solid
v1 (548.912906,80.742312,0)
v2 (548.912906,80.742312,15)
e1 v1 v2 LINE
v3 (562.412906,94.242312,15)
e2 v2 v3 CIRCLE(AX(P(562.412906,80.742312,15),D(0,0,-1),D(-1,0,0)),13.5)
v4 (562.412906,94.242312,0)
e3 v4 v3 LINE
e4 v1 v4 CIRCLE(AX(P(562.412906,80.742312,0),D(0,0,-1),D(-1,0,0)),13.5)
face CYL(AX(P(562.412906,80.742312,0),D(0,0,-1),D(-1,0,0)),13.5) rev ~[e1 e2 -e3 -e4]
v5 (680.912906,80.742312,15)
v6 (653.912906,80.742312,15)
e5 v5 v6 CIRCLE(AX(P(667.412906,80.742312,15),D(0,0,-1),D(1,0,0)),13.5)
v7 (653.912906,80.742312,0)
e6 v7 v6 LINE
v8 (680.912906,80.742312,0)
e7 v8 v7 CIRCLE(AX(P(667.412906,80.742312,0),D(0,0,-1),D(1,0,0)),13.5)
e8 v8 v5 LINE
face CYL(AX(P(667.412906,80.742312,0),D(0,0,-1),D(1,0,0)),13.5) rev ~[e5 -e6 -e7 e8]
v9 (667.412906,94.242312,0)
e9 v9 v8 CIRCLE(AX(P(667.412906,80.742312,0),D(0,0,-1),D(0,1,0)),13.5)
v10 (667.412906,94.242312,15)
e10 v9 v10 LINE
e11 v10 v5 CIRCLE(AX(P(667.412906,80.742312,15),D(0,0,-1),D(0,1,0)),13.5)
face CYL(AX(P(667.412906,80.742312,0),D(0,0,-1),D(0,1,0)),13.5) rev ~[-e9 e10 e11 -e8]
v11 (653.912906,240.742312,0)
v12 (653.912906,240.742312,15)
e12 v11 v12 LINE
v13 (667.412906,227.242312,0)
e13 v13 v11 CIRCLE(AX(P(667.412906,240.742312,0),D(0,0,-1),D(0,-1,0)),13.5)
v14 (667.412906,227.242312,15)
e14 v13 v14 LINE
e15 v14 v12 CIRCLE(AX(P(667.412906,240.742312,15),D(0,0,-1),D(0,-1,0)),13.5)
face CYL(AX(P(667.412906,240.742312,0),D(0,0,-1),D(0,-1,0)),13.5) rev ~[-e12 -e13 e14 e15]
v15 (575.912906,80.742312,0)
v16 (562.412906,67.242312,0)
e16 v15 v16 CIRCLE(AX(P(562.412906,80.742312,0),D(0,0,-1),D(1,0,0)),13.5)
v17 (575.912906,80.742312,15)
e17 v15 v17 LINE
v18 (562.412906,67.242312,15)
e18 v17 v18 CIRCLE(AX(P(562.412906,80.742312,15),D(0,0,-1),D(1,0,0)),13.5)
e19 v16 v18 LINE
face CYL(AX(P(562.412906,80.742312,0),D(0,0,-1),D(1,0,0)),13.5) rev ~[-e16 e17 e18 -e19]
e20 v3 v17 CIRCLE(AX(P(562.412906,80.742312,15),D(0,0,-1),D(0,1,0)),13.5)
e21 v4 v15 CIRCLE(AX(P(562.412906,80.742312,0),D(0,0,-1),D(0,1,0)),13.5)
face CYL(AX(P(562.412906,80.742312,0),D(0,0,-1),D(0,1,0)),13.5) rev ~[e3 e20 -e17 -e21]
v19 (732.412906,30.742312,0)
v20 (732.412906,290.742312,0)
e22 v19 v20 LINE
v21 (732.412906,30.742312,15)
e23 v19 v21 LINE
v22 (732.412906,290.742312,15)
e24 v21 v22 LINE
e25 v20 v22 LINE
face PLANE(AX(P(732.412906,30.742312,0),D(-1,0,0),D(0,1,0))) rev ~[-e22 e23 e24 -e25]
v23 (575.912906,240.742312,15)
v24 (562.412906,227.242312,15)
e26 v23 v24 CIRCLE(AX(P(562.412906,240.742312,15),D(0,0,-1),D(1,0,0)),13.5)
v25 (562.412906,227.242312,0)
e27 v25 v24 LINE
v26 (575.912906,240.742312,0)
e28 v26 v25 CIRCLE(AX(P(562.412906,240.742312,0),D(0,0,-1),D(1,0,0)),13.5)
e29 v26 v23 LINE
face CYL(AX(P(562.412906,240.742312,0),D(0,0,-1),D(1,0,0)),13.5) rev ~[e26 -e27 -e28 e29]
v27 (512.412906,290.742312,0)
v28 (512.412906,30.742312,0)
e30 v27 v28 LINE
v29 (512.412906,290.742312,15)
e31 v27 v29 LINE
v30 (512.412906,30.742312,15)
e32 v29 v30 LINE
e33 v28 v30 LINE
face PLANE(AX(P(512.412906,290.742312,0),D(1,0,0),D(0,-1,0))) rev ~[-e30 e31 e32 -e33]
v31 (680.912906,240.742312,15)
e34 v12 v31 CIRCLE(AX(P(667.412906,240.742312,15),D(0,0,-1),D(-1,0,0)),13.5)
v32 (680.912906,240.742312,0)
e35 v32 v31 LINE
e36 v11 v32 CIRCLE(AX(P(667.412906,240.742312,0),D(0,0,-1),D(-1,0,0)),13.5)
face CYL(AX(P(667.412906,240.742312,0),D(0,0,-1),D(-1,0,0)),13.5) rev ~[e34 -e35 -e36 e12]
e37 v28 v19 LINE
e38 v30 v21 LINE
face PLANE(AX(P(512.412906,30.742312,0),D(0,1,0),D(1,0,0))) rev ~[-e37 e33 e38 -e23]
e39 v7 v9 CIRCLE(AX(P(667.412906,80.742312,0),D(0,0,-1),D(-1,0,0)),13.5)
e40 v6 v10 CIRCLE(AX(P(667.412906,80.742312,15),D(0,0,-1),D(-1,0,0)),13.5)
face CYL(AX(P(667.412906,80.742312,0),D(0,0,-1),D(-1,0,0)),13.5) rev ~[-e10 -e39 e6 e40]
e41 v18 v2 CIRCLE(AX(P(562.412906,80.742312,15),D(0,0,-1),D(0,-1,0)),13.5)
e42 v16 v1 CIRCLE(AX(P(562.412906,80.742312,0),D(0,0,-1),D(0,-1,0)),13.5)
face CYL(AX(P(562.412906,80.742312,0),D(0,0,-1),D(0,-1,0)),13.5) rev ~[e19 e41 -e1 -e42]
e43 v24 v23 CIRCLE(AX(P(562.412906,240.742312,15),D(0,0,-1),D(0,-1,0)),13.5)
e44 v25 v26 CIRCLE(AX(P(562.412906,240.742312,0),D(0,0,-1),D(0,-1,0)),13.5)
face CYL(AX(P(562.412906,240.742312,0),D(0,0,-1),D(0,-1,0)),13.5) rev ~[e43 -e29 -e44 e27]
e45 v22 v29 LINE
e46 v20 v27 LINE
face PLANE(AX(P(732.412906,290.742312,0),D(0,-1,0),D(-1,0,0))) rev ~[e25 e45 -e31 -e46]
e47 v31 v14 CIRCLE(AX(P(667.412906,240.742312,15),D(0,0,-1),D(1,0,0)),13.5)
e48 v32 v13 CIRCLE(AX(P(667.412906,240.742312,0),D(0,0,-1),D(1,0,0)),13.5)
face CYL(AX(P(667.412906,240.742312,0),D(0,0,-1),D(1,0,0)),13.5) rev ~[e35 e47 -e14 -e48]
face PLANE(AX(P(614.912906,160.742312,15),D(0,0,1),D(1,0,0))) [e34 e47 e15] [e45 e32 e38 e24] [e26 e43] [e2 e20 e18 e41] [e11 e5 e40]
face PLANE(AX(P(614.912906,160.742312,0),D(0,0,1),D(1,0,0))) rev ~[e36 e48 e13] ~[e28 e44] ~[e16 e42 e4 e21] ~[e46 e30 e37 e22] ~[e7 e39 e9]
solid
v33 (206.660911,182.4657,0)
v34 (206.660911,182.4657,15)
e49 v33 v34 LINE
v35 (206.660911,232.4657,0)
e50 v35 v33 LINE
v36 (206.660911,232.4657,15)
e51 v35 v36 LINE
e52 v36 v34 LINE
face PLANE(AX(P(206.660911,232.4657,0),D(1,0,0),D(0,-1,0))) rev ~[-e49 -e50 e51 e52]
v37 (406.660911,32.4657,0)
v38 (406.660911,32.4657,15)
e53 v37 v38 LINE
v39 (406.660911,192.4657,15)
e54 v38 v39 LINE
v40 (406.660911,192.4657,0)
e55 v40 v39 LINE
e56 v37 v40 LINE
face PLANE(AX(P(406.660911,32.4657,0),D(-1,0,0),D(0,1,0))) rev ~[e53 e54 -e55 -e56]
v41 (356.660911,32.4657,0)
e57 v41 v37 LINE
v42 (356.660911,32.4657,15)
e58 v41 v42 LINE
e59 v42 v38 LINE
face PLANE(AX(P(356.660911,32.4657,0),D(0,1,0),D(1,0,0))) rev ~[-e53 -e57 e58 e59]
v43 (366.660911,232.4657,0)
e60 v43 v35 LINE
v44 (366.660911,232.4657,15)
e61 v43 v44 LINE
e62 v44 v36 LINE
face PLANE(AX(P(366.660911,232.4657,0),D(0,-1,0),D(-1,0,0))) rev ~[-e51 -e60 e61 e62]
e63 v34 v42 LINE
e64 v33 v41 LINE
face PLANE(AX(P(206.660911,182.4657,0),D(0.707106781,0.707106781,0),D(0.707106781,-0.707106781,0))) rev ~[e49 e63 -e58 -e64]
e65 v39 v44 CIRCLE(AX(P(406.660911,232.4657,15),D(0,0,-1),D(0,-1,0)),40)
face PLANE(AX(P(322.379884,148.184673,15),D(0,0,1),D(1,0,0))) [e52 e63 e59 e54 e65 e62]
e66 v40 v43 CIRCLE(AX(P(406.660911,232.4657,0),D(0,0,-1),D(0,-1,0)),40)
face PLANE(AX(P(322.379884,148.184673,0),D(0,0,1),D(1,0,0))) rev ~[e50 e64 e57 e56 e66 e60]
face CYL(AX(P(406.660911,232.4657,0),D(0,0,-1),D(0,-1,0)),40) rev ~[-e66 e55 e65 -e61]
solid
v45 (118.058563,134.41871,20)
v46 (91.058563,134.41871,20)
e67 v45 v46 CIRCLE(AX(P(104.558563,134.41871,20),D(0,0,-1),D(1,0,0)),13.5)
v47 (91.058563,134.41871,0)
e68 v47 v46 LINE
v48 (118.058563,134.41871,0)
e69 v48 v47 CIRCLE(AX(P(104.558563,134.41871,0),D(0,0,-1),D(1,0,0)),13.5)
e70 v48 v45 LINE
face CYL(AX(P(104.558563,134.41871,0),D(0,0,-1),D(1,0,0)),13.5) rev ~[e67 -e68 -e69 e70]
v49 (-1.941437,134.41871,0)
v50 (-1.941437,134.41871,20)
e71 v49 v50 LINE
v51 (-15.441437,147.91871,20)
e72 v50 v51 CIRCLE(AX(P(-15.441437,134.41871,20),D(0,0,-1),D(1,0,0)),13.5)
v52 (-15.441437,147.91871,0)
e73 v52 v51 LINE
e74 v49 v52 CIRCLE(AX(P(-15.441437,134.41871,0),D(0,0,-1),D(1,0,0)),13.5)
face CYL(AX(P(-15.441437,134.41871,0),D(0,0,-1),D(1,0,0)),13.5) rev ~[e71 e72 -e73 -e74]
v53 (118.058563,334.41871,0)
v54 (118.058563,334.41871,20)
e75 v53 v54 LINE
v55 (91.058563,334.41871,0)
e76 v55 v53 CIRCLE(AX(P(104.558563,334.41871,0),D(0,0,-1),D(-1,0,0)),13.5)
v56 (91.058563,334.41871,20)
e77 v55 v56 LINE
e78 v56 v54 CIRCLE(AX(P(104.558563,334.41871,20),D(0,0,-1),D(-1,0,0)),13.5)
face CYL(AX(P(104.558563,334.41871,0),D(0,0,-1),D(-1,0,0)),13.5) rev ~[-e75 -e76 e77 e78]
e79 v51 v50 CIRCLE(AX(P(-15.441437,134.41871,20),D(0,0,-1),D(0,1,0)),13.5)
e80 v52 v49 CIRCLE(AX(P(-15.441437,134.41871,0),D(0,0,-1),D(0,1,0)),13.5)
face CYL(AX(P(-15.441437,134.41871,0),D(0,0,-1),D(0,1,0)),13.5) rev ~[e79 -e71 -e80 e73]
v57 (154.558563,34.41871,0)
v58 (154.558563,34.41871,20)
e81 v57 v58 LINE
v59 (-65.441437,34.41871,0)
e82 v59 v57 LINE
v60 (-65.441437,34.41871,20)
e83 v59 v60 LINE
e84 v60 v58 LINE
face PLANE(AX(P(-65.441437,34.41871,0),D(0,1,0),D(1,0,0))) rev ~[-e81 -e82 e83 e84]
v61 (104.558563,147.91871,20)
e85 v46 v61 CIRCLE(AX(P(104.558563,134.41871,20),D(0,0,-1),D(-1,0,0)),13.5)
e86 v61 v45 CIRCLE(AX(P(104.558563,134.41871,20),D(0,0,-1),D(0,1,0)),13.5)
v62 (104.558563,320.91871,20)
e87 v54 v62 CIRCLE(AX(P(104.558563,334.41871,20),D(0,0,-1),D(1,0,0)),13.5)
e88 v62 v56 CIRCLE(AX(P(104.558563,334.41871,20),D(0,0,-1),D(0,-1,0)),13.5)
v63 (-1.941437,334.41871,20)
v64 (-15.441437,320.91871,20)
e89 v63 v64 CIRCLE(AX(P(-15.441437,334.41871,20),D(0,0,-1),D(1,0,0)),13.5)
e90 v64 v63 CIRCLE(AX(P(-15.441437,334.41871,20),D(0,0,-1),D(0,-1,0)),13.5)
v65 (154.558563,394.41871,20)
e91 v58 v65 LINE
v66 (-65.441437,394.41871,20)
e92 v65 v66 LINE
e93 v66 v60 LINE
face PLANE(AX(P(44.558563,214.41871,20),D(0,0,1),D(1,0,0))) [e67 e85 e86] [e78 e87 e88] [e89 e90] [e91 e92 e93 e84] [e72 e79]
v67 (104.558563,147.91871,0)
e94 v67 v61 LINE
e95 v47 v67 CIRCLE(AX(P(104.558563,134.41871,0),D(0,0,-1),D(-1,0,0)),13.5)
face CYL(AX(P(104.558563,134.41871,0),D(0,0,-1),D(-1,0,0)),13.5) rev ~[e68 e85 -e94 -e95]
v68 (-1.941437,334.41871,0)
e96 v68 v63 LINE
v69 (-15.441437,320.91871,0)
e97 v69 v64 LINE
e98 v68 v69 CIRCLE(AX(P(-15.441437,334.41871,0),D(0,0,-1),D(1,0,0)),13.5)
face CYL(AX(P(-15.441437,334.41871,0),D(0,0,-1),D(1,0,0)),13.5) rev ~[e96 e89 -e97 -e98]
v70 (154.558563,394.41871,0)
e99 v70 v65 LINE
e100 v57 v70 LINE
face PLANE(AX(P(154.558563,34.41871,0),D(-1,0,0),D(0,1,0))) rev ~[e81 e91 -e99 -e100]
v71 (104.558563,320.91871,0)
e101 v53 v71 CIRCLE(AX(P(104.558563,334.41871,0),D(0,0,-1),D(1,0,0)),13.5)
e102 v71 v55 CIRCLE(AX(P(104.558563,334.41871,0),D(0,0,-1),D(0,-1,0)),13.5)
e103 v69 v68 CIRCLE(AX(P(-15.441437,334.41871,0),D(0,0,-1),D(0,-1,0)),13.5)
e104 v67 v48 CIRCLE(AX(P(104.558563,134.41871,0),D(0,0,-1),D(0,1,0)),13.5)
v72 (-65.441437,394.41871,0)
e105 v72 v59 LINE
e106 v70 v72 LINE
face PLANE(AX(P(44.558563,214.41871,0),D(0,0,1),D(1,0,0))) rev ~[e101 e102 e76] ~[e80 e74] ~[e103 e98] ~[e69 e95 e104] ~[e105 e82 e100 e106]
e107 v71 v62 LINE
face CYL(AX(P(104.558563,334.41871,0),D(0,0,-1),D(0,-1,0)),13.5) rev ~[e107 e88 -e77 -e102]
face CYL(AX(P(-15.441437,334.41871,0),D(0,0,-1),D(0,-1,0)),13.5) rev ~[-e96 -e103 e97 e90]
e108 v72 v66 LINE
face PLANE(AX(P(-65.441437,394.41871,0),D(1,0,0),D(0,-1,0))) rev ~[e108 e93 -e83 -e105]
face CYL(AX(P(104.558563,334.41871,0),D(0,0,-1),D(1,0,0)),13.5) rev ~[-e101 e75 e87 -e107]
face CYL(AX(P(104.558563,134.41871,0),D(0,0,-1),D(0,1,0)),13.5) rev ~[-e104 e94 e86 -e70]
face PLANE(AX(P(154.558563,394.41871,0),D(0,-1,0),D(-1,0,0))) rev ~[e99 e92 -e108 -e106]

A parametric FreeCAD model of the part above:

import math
import FreeCAD as App
import Part
import Sketcher
from FreeCAD import Vector
Q = App.Units.Quantity


def add_polygon(sketch, points):
    """Adds a closed chain of lines whose ends are joined by coincident constraints."""
    first, n = sketch.GeometryCount, len(points)
    for a, b in zip(points, points[1:] + points[:1]):
        sketch.addGeometry(Part.LineSegment(App.Vector(*a, 0), App.Vector(*b, 0)), False)
    for i in range(n):
        sketch.addConstraint(Sketcher.Constraint("Coincident", first + i, 2, first + (i + 1) % n, 1))

doc = App.newDocument("Part")
params = doc.addObject("Spreadsheet::Sheet", "Params")
for row, (alias, value) in enumerate([
    ("sketch1_radius", "13.5 mm"),
    ("sketch1_width", "220 mm"),
    ("sketch1_height", "360 mm"),
    ("pad1_length", "20 mm"),
    ("sketch2_radius", "40 mm"),
    ("sketch2_width", "50 mm"),
    ("sketch2_width2", "160 mm"),
    ("pad2_length", "15 mm"),
    ("sketch3_radius", "13.5 mm"),
    ("sketch3_width", "220 mm"),
    ("sketch3_height", "260 mm"),
    ("pad3_length", "15 mm"),
], start=1):
    params.set(f"A{row}", alias)
    params.set(f"B{row}", "=" + value)
    params.setAlias(f"B{row}", alias)

body = doc.addObject("PartDesign::Body", "Body")

sketch1 = body.newObject("Sketcher::SketchObject", "Sketch")
sketch1.AttachmentSupport = (doc.getObject("XY_Plane"), [""])
sketch1.MapMode = "FlatFace"
add_polygon(sketch1, [(-65, 394), (-65, 34), (155, 34), (155, 394)])
sketch1.addGeometry(Part.ArcOfCircle(Part.Circle(Vector(105, 134, 0), Vector(0, 0, 1), 14), math.radians(180), math.radians(360)), False)
sketch1.addGeometry(Part.ArcOfCircle(Part.Circle(Vector(105, 134, 0), Vector(0, 0, 1), 14), math.radians(90), math.radians(180)), False)
sketch1.addGeometry(Part.ArcOfCircle(Part.Circle(Vector(105, 134, 0), Vector(0, 0, 1), 14), math.radians(0), math.radians(90)), False)
sketch1.addGeometry(Part.ArcOfCircle(Part.Circle(Vector(105, 334, 0), Vector(0, 0, 1), 14), math.radians(-90), math.radians(0)), False)
sketch1.addGeometry(Part.ArcOfCircle(Part.Circle(Vector(105, 334, 0), Vector(0, 0, 1), 14), math.radians(180), math.radians(270)), False)
sketch1.addGeometry(Part.ArcOfCircle(Part.Circle(Vector(105, 334, 0), Vector(0, 0, 1), 14), math.radians(0), math.radians(180)), False)
sketch1.addGeometry(Part.ArcOfCircle(Part.Circle(Vector(-15, 334, 0), Vector(0, 0, 1), 14), math.radians(0), math.radians(270)), False)
sketch1.addGeometry(Part.ArcOfCircle(Part.Circle(Vector(-15, 334, 0), Vector(0, 0, 1), 14), math.radians(-90), math.radians(0)), False)
sketch1.addGeometry(Part.ArcOfCircle(Part.Circle(Vector(-15, 134, 0), Vector(0, 0, 1), 14), math.radians(90), math.radians(360)), False)
sketch1.addGeometry(Part.ArcOfCircle(Part.Circle(Vector(-15, 134, 0), Vector(0, 0, 1), 14), math.radians(0), math.radians(90)), False)
sketch1.addConstraint([
    Sketcher.Constraint("Tangent", 4, 1, 5, 2),
    Sketcher.Constraint("Tangent", 5, 1, 6, 2),
    Sketcher.Constraint("Tangent", 6, 1, 4, 2),
    Sketcher.Constraint("Tangent", 7, 1, 8, 2),
    Sketcher.Constraint("Tangent", 8, 1, 9, 2),
    Sketcher.Constraint("Tangent", 9, 1, 7, 2),
    Sketcher.Constraint("Tangent", 10, 1, 11, 2),
    Sketcher.Constraint("Coincident", 11, 1, 10, 2),
    Sketcher.Constraint("Tangent", 12, 1, 13, 2),
    Sketcher.Constraint("Coincident", 13, 1, 12, 2),
    Sketcher.Constraint("Vertical", 0),
    Sketcher.Constraint("Horizontal", 1),
    Sketcher.Constraint("Vertical", 2),
    Sketcher.Constraint("Horizontal", 3),
    Sketcher.Constraint("Equal", 6, 7),
    Sketcher.Constraint("Equal", 9, 10),
    Sketcher.Constraint("Equal", 11, 12),
    Sketcher.Constraint("Horizontal", 9, 3, 10, 3),
    Sketcher.Constraint("Horizontal", 6, 3, 12, 3),
    Sketcher.Constraint("Horizontal", 13, 3, 4, 1),
    Sketcher.Constraint("Horizontal", 4, 1, 6, 1),
    Sketcher.Constraint("Horizontal", 11, 3, 8, 1),
    Sketcher.Constraint("Horizontal", 8, 1, 9, 1),
    Sketcher.Constraint("Horizontal", 9, 1, 10, 1),
    Sketcher.Constraint("Horizontal", 6, 1, 13, 1),
    Sketcher.Constraint("Vertical", 6, 3, 7, 3),
    Sketcher.Constraint("Vertical", 11, 3, 12, 3),
    Sketcher.Constraint("Vertical", 9, 3, 5, 1),
    Sketcher.Constraint("Vertical", 5, 1, 7, 1),
    Sketcher.Constraint("Vertical", 13, 3, 11, 1),
    Sketcher.Constraint("Vertical", 11, 1, 12, 1),
    Sketcher.Constraint("Radius", 4, 13.5),
    Sketcher.Constraint("DistanceX", 1, 1, 1, 2, 220.0),
    Sketcher.Constraint("DistanceY", 0, 2, 0, 1, 360.0),
    Sketcher.Constraint("DistanceY", 4, 3, 7, 3, 200.0),
    Sketcher.Constraint("DistanceX", 10, 3, 7, 3, 120.0),
    Sketcher.Constraint("DistanceX", 0, 2, 12, 3, 50.0),
    Sketcher.Constraint("DistanceY", 0, 2, 12, 3, 100.0),
    Sketcher.Constraint("DistanceY", -1, 1, 4, 3, 134.41871),
    Sketcher.Constraint("DistanceX", -1, 1, 4, 3, 104.558563),
])
sketch1.setExpression("Constraints[35]", "Params.sketch1_radius")
sketch1.setExpression("Constraints[36]", "Params.sketch1_width")
sketch1.setExpression("Constraints[37]", "Params.sketch1_height")
pad1 = body.newObject("PartDesign::Pad", "Pad")
pad1.Profile = sketch1
pad1.setExpression("Length", "Params.pad1_length")
body2 = doc.addObject("PartDesign::Body", "Body001")

sketch2 = body2.newObject("Sketcher::SketchObject", "Sketch001")
sketch2.AttachmentSupport = (doc.getObject("XY_Plane001"), [""])
sketch2.MapMode = "FlatFace"
sketch2.addGeometry([
    Part.LineSegment(Vector(207, 182, 0), Vector(357, 32, 0)),
    Part.LineSegment(Vector(357, 32, 0), Vector(407, 32, 0)),
    Part.LineSegment(Vector(407, 32, 0), Vector(407, 192, 0)),
    Part.ArcOfCircle(Part.Circle(Vector(407, 232, 0), Vector(0, 0, 1), 40), math.radians(180), math.radians(270)),
    Part.LineSegment(Vector(367, 232, 0), Vector(207, 232, 0)),
    Part.LineSegment(Vector(207, 232, 0), Vector(207, 182, 0)),
], False)
sketch2.addConstraint([
    Sketcher.Constraint("Coincident", 0, 2, 1, 1),
    Sketcher.Constraint("Coincident", 1, 2, 2, 1),
    Sketcher.Constraint("Coincident", 2, 2, 3, 2),
    Sketcher.Constraint("Coincident", 3, 1, 4, 1),
    Sketcher.Constraint("Coincident", 4, 2, 5, 1),
    Sketcher.Constraint("Coincident", 5, 2, 0, 1),
    Sketcher.Constraint("Horizontal", 1),
    Sketcher.Constraint("Vertical", 2),
    Sketcher.Constraint("Horizontal", 4),
    Sketcher.Constraint("Vertical", 5),
    Sketcher.Constraint("Vertical", 3, 3, 1, 2),
    Sketcher.Constraint("Equal", 4, 2),
    Sketcher.Constraint("Equal", 1, 5),
    Sketcher.Constraint("Radius", 3, 40.0),
    Sketcher.Constraint("DistanceX", 1, 1, 1, 2, 50.0),
    Sketcher.Constraint("DistanceX", 4, 2, 4, 1, 160.0),
    Sketcher.Constraint("Angle", 0, Q("-45 deg")),
    Sketcher.Constraint("DistanceY", -1, 1, 3, 3, 232.4657),
    Sketcher.Constraint("DistanceX", -1, 1, 3, 3, 406.660911),
])
sketch2.setExpression("Constraints[13]", "Params.sketch2_radius")
sketch2.setExpression("Constraints[14]", "Params.sketch2_width")
sketch2.setExpression("Constraints[15]", "Params.sketch2_width2")
pad2 = body2.newObject("PartDesign::Pad", "Pad001")
pad2.Profile = sketch2
pad2.setExpression("Length", "Params.pad2_length")
body3 = doc.addObject("PartDesign::Body", "Body002")

sketch3 = body3.newObject("Sketcher::SketchObject", "Sketch002")
sketch3.AttachmentSupport = (doc.getObject("XY_Plane002"), [""])
sketch3.MapMode = "FlatFace"
add_polygon(sketch3, [(732, 31), (732, 291), (512, 291), (512, 31)])
sketch3.addGeometry(Part.ArcOfCircle(Part.Circle(Vector(562, 81, 0), Vector(0, 0, 1), 14), math.radians(0), math.radians(90)), False)
sketch3.addGeometry(Part.ArcOfCircle(Part.Circle(Vector(562, 81, 0), Vector(0, 0, 1), 14), math.radians(-90), math.radians(0)), False)
sketch3.addGeometry(Part.ArcOfCircle(Part.Circle(Vector(562, 81, 0), Vector(0, 0, 1), 14), math.radians(180), math.radians(270)), False)
sketch3.addGeometry(Part.ArcOfCircle(Part.Circle(Vector(562, 81, 0), Vector(0, 0, 1), 14), math.radians(90), math.radians(180)), False)
sketch3.addGeometry(Part.ArcOfCircle(Part.Circle(Vector(667, 81, 0), Vector(0, 0, 1), 14), math.radians(90), math.radians(180)), False)
sketch3.addGeometry(Part.ArcOfCircle(Part.Circle(Vector(667, 81, 0), Vector(0, 0, 1), 14), math.radians(0), math.radians(90)), False)
sketch3.addGeometry(Part.ArcOfCircle(Part.Circle(Vector(667, 81, 0), Vector(0, 0, 1), 14), math.radians(180), math.radians(360)), False)
sketch3.addGeometry(Part.ArcOfCircle(Part.Circle(Vector(667, 241, 0), Vector(0, 0, 1), 14), math.radians(180), math.radians(270)), False)
sketch3.addGeometry(Part.ArcOfCircle(Part.Circle(Vector(667, 241, 0), Vector(0, 0, 1), 14), math.radians(0), math.radians(180)), False)
sketch3.addGeometry(Part.ArcOfCircle(Part.Circle(Vector(667, 241, 0), Vector(0, 0, 1), 14), math.radians(-90), math.radians(0)), False)
sketch3.addGeometry(Part.ArcOfCircle(Part.Circle(Vector(562, 241, 0), Vector(0, 0, 1), 14), math.radians(-90), math.radians(0)), False)
sketch3.addGeometry(Part.ArcOfCircle(Part.Circle(Vector(562, 241, 0), Vector(0, 0, 1), 14), math.radians(0), math.radians(270)), False)
sketch3.addConstraint([
    Sketcher.Constraint("Tangent", 4, 1, 5, 2),
    Sketcher.Constraint("Tangent", 5, 1, 6, 2),
    Sketcher.Constraint("Tangent", 6, 1, 7, 2),
    Sketcher.Constraint("Tangent", 7, 1, 4, 2),
    Sketcher.Constraint("Tangent", 8, 1, 9, 2),
    Sketcher.Constraint("Tangent", 9, 1, 10, 2),
    Sketcher.Constraint("Tangent", 10, 1, 8, 2),
    Sketcher.Constraint("Tangent", 11, 1, 12, 2),
    Sketcher.Constraint("Tangent", 12, 1, 13, 2),
    Sketcher.Constraint("Tangent", 13, 1, 11, 2),
    Sketcher.Constraint("Tangent", 14, 1, 15, 2),
    Sketcher.Constraint("Coincident", 15, 1, 14, 2),
    Sketcher.Constraint("Vertical", 0),
    Sketcher.Constraint("Horizontal", 1),
    Sketcher.Constraint("Vertical", 2),
    Sketcher.Constraint("Horizontal", 3),
    Sketcher.Constraint("Equal", 4, 5),
    Sketcher.Constraint("Equal", 7, 8),
    Sketcher.Constraint("Equal", 10, 11),
    Sketcher.Constraint("Equal", 13, 14),
    Sketcher.Constraint("Horizontal", 7, 3, 8, 3),
    Sketcher.Constraint("Horizontal", 13, 3, 14, 3),
    Sketcher.Constraint("Horizontal", 10, 3, 4, 1),
    Sketcher.Constraint("Horizontal", 4, 1, 6, 1),
    Sketcher.Constraint("Horizontal", 6, 1, 9, 1),
    Sketcher.Constraint("Horizontal", 9, 1, 10, 1),
    Sketcher.Constraint("Horizontal", 15, 3, 11, 1),
    Sketcher.Constraint("Horizontal", 11, 1, 12, 1),
    Sketcher.Constraint("Horizontal", 12, 1, 15, 1),
    Sketcher.Constraint("Vertical", 10, 3, 11, 3),
    Sketcher.Constraint("Vertical", 7, 3, 14, 3),
    Sketcher.Constraint("Vertical", 15, 3, 5, 1),
    Sketcher.Constraint("Vertical", 5, 1, 7, 1),
    Sketcher.Constraint("Vertical", 13, 3, 8, 1),
    Sketcher.Constraint("Vertical", 8, 1, 13, 1),
    Sketcher.Constraint("Vertical", 7, 1, 14, 1),
    Sketcher.Constraint("Radius", 4, 13.5),
    Sketcher.Constraint("DistanceX", 1, 2, 1, 1, 220.0),
    Sketcher.Constraint("DistanceY", 0, 1, 0, 2, 260.0),
    Sketcher.Constraint("DistanceX", 4, 3, 8, 3, 105.0),
    Sketcher.Constraint("DistanceY", 8, 3, 11, 3, 160.0),
    Sketcher.Constraint("DistanceX", 11, 3, 0, 2, 65.0),
    Sketcher.Constraint("DistanceY", 11, 3, 0, 2, 50.0),
    Sketcher.Constraint("DistanceY", -1, 1, 4, 3, 80.742312),
    Sketcher.Constraint("DistanceX", -1, 1, 4, 3, 562.412906),
])
sketch3.setExpression("Constraints[40]", "Params.sketch3_radius")
sketch3.setExpression("Constraints[41]", "Params.sketch3_width")
sketch3.setExpression("Constraints[42]", "Params.sketch3_height")
pad3 = body3.newObject("PartDesign::Pad", "Pad002")
pad3.Profile = sketch3
pad3.setExpression("Length", "Params.pad3_length")

doc.recompute()
